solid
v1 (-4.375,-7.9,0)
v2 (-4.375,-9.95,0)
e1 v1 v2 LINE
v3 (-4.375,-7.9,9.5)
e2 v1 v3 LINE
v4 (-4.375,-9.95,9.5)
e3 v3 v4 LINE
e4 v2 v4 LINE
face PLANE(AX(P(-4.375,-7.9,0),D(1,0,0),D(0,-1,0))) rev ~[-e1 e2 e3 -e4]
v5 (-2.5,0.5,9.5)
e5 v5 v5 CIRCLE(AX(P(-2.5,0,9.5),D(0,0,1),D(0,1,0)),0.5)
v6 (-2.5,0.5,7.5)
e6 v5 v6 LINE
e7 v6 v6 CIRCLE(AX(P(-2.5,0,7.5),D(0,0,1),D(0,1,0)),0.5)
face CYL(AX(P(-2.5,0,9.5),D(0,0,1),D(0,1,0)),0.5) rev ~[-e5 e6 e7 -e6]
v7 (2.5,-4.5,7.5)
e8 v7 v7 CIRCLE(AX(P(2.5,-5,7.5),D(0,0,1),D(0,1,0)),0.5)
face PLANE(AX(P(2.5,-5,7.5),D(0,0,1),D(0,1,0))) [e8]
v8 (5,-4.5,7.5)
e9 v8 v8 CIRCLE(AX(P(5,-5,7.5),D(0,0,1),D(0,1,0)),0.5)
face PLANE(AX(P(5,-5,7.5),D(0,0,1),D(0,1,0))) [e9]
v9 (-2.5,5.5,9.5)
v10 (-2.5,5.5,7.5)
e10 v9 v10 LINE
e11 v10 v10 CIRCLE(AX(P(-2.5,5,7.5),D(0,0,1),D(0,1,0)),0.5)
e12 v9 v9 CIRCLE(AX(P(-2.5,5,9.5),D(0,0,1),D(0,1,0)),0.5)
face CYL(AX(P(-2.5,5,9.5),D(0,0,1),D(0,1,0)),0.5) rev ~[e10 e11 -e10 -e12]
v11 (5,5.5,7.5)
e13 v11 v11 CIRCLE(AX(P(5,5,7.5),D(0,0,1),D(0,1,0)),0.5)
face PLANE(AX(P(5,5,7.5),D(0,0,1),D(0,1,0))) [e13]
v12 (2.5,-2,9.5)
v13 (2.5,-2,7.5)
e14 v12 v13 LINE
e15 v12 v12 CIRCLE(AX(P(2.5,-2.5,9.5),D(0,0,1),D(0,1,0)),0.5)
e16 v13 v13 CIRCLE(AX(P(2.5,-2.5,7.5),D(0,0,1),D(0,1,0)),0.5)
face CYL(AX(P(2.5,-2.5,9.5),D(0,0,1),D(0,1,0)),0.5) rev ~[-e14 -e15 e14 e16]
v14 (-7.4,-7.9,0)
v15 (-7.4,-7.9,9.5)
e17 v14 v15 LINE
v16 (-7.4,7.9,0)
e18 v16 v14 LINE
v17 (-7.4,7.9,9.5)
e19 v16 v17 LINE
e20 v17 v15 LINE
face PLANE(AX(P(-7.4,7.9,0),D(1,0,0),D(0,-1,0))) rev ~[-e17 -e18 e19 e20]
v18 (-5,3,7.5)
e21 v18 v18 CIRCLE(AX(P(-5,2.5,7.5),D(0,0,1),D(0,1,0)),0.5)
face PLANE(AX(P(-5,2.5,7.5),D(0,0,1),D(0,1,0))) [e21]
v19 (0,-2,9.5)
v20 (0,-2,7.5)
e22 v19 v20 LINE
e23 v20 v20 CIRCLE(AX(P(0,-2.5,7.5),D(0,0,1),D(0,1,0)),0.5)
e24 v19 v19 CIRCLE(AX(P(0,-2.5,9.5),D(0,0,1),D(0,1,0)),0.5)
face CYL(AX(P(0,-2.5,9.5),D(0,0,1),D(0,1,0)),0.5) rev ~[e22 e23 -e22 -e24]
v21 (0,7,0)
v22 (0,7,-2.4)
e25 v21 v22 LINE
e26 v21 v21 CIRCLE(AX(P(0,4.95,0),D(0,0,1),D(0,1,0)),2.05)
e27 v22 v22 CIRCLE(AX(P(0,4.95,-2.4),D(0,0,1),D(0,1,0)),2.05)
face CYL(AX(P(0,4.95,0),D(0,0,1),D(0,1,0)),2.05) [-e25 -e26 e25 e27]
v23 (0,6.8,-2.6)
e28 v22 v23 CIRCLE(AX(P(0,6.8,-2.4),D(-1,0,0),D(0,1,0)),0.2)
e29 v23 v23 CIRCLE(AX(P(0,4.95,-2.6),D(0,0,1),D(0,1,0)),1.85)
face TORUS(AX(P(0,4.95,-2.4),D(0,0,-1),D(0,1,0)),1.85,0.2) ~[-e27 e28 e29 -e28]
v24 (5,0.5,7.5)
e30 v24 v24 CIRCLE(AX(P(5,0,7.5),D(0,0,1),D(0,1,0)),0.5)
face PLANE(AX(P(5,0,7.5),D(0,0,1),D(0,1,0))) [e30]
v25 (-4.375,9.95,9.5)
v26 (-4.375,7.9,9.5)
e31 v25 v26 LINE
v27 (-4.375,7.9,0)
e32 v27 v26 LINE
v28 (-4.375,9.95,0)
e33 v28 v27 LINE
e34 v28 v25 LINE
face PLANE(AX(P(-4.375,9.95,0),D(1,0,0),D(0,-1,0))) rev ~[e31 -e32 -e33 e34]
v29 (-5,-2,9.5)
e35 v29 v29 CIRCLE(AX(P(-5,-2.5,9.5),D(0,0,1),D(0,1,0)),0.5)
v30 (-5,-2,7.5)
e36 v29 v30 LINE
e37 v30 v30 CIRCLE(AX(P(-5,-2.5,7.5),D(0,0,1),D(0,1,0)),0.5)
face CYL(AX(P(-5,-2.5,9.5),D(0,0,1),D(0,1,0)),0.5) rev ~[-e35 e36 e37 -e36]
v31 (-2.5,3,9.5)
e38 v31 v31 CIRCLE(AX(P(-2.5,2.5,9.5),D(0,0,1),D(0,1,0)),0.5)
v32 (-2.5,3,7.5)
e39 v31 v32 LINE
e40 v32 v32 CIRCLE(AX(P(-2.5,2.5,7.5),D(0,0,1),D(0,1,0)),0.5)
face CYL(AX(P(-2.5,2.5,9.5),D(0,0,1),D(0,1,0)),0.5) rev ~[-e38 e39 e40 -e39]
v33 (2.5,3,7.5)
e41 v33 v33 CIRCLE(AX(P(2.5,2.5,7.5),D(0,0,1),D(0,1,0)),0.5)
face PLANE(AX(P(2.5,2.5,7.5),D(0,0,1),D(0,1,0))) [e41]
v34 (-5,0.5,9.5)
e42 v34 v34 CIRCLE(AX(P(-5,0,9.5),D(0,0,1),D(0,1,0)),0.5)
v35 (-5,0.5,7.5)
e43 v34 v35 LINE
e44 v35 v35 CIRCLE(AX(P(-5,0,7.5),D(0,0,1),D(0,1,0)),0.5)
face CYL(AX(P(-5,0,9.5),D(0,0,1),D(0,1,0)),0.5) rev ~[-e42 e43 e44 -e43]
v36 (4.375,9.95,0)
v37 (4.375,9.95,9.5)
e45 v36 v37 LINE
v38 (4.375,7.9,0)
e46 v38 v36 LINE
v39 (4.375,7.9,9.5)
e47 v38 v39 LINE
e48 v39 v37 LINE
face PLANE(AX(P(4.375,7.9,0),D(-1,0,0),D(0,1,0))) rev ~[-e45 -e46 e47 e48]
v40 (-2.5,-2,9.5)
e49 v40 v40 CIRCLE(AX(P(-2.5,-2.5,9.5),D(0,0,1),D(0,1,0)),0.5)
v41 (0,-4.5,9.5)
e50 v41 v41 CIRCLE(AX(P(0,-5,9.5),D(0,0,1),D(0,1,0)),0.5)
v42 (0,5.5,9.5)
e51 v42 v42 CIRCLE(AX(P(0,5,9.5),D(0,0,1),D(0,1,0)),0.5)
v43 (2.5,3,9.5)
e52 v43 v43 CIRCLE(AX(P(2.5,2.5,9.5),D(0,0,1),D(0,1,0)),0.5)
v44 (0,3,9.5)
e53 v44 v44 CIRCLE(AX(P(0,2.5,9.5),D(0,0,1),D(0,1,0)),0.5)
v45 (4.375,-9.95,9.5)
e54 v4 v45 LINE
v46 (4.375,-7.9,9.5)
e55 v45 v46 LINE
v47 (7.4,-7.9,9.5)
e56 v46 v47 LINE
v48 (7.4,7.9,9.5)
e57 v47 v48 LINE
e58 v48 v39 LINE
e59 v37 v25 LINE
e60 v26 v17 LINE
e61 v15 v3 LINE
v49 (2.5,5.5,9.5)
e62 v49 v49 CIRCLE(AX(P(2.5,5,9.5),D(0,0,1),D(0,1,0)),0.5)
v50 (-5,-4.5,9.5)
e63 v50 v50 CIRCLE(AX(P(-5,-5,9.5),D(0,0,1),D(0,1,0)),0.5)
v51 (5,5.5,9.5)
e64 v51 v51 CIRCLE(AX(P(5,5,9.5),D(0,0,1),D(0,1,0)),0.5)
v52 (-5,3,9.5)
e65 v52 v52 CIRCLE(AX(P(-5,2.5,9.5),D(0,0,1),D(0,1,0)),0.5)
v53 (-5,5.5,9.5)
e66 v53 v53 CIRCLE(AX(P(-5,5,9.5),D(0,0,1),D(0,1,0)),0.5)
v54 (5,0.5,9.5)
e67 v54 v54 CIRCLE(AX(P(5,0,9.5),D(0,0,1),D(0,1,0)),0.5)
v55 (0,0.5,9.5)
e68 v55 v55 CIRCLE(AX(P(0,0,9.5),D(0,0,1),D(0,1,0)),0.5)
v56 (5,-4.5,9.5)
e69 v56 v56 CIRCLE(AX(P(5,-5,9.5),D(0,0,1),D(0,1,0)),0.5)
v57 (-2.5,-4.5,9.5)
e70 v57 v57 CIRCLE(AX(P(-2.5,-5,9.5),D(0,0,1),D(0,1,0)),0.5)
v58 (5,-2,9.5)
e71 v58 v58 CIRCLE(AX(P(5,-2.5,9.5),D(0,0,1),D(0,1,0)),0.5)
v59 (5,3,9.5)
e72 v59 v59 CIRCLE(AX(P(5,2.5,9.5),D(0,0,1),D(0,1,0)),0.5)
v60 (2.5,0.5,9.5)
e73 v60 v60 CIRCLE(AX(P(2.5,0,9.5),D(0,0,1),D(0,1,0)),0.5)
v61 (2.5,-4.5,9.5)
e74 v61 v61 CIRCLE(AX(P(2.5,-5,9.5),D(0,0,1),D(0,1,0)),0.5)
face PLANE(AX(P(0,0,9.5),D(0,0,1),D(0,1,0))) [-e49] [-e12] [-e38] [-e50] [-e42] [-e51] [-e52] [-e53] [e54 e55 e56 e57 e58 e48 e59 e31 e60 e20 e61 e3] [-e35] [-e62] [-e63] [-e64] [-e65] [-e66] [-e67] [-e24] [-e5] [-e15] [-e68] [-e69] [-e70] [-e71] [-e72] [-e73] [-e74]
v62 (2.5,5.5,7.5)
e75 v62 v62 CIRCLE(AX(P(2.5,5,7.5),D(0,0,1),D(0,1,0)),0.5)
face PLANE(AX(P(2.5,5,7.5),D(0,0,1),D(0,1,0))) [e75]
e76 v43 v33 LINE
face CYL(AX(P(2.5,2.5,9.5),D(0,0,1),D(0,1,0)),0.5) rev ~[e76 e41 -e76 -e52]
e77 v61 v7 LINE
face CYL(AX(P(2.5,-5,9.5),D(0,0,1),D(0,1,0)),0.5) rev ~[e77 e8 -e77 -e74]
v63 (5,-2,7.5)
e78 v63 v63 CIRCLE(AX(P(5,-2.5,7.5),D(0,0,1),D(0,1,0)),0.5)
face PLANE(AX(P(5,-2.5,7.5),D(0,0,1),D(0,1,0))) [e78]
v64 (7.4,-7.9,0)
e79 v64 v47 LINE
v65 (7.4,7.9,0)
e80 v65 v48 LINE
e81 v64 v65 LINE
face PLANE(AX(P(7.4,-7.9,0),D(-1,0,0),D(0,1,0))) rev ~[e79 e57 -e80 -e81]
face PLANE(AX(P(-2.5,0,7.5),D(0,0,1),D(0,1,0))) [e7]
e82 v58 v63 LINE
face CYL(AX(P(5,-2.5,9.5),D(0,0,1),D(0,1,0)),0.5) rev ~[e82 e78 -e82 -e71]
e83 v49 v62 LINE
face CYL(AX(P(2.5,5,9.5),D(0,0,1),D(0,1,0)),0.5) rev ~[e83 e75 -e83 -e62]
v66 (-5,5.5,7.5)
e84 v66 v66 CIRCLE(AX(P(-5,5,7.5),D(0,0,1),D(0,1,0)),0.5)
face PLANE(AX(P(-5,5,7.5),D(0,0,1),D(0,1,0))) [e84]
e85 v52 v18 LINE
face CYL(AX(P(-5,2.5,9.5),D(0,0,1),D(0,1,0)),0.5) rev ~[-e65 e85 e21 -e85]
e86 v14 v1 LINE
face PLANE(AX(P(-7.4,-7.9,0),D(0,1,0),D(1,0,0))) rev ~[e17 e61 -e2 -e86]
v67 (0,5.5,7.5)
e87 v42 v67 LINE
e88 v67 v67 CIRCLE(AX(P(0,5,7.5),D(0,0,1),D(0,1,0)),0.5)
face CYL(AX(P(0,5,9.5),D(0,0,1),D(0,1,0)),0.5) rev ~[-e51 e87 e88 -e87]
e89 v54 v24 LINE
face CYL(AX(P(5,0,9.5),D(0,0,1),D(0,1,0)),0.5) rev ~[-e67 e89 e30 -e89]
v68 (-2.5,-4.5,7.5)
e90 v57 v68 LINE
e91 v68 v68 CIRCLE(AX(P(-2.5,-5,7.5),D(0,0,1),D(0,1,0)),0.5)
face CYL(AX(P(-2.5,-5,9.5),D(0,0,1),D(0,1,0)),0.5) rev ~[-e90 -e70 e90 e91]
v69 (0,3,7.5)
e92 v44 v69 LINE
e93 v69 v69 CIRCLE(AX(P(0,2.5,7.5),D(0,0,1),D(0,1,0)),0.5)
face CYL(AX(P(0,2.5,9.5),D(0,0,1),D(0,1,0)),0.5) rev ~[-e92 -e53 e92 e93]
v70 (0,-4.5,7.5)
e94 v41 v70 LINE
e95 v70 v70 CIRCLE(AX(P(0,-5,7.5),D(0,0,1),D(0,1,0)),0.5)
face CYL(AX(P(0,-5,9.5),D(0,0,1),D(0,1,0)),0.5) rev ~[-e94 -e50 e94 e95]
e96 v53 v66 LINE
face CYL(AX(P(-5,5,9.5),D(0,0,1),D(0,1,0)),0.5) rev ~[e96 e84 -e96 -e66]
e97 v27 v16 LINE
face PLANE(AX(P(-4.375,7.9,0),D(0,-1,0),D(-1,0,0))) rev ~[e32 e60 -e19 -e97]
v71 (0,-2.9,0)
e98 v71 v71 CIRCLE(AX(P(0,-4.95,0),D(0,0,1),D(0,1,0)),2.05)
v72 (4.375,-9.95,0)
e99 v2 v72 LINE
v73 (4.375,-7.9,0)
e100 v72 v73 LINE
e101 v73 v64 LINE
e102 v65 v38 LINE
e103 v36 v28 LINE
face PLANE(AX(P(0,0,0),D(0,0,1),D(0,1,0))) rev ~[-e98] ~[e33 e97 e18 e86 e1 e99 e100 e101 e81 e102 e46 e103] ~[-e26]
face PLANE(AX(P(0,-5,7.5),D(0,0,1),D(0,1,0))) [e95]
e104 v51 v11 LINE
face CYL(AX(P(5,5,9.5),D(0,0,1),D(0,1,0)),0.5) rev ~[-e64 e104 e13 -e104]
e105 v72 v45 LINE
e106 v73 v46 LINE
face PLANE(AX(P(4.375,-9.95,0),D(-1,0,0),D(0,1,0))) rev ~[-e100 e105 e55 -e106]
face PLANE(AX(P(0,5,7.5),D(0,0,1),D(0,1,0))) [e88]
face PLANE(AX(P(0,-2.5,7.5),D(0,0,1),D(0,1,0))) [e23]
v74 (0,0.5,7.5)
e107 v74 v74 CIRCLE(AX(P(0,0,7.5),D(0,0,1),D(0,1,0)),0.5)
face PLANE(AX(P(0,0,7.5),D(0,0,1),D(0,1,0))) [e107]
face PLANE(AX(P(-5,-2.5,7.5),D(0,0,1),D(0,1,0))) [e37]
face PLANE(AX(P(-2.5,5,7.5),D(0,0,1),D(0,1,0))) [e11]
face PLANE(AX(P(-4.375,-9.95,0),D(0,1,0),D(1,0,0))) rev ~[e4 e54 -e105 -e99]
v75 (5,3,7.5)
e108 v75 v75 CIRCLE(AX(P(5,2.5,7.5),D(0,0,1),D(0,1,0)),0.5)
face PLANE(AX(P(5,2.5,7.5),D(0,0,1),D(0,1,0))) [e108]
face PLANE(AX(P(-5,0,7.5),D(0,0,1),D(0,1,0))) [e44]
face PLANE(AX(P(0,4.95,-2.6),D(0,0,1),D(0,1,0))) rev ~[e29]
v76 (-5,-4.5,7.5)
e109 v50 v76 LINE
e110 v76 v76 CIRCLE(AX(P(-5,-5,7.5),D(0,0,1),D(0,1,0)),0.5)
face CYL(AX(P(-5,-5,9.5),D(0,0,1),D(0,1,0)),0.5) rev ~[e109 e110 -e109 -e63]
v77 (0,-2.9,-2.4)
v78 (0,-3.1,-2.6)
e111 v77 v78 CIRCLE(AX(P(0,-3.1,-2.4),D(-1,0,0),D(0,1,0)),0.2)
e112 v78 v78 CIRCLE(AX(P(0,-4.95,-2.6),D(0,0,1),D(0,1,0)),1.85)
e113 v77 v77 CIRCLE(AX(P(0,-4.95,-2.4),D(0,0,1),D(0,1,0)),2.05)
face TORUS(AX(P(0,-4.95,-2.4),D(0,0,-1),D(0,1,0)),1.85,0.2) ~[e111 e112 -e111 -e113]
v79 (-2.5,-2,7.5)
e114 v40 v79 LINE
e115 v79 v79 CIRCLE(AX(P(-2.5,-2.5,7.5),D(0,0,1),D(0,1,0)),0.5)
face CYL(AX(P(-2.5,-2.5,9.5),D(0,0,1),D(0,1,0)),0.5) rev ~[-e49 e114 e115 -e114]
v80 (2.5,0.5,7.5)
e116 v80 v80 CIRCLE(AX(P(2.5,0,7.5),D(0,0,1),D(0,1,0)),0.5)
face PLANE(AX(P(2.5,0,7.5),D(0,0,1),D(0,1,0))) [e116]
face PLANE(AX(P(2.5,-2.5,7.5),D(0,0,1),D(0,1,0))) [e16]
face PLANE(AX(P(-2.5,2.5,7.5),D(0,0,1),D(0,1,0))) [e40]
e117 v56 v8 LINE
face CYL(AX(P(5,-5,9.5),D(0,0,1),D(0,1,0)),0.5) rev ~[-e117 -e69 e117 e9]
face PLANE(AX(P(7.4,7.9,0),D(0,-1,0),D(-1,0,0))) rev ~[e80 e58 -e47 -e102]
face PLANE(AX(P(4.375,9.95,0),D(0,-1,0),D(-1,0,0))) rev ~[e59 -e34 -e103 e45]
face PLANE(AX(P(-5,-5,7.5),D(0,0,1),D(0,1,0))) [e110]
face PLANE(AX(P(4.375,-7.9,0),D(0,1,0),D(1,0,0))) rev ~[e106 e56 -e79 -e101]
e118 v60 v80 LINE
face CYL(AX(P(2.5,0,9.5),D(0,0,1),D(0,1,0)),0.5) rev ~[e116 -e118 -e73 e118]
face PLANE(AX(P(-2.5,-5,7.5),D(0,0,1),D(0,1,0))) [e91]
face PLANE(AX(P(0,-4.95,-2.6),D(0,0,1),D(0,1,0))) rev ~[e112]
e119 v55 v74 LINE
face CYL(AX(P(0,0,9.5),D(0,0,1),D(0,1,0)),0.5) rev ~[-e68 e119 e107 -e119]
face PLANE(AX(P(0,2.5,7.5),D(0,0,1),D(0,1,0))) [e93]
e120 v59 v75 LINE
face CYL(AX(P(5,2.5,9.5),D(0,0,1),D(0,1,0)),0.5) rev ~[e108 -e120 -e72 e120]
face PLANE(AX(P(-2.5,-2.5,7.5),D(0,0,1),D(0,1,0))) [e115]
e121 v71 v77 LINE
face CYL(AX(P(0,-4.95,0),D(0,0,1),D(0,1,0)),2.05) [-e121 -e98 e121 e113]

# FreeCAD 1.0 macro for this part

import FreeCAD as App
import Part
import Sketcher
from FreeCAD import Vector


def edges_at(feature, points):
    """Names of the edges that pass closest to the given points."""
    edges = feature.Shape.Edges
    near = lambda p: min(range(len(edges)), key=lambda i: edges[i].distToShape(Part.Vertex(*p))[0])
    return sorted({f"Edge{near(p) + 1}" for p in points})


def add_polygon(sketch, points):
    """Adds a closed chain of lines whose ends are joined by coincident constraints."""
    first, n = sketch.GeometryCount, len(points)
    for a, b in zip(points, points[1:] + points[:1]):
        sketch.addGeometry(Part.LineSegment(App.Vector(*a, 0), App.Vector(*b, 0)), False)
    for i in range(n):
        sketch.addConstraint(Sketcher.Constraint("Coincident", first + i, 2, first + (i + 1) % n, 1))

doc = App.newDocument("Part")
body = doc.addObject("PartDesign::Body", "Body")

# Sketch on XY plane
sketch1 = body.newObject("Sketcher::SketchObject", "Sketch")
sketch1.AttachmentSupport = (doc.getObject("XY_Plane"), [""])
sketch1.MapMode = "FlatFace"
add_polygon(sketch1, [(-9.95, 4.375), (-9.95, -4.375), (-7.9, -4.375), (-7.9, -7.4), (7.9, -7.4), (7.9, -4.375), (9.95, -4.375), (9.95, 4.375), (7.9, 4.375), (7.9, 7.4), (-7.9, 7.4), (-7.9, 4.375)])  # lines 0-11
sketch1.addConstraint(Sketcher.Constraint("Vertical", 0))
sketch1.addConstraint(Sketcher.Constraint("Horizontal", 1))
sketch1.addConstraint(Sketcher.Constraint("Vertical", 2))
sketch1.addConstraint(Sketcher.Constraint("Horizontal", 3))
sketch1.addConstraint(Sketcher.Constraint("Vertical", 4))
sketch1.addConstraint(Sketcher.Constraint("Horizontal", 5))
sketch1.addConstraint(Sketcher.Constraint("Vertical", 6))
sketch1.addConstraint(Sketcher.Constraint("Horizontal", 7))
sketch1.addConstraint(Sketcher.Constraint("Vertical", 8))
sketch1.addConstraint(Sketcher.Constraint("Horizontal", 9))
sketch1.addConstraint(Sketcher.Constraint("Vertical", 10))
sketch1.addConstraint(Sketcher.Constraint("Horizontal", 11))
sketch1.addConstraint(Sketcher.Constraint("Symmetric", 0, 2, 6, 2, -1, 1))
sketch1.addConstraint(Sketcher.Constraint("Symmetric", 2, 2, 8, 2, -1, 1))
sketch1.addConstraint(Sketcher.Constraint("Symmetric", 4, 2, 10, 2, -1, 1))
sketch1.addConstraint(Sketcher.Constraint("Symmetric", 1, 2, 4, 2, -2))
sketch1.addConstraint(Sketcher.Constraint("DistanceX", 3, 1, 3, 2, 15.8))
sketch1.addConstraint(Sketcher.Constraint("DistanceX", 1, 1, 1, 2, 2.05))
sketch1.addConstraint(Sketcher.Constraint("DistanceY", 0, 2, 0, 1, 8.75))
sketch1.addConstraint(Sketcher.Constraint("DistanceY", 2, 2, -1, 1, 7.4))
pad1 = body.newObject("PartDesign::Pad", "Pad")
pad1.Profile = sketch1
pad1.Length = 9.5

# Sketch on XY plane
sketch2 = body.newObject("Sketcher::SketchObject", "Sketch001")
sketch2.AttachmentSupport = (doc.getObject("XY_Plane"), [""])
sketch2.MapMode = "FlatFace"
sketch2.AttachmentOffset = App.Placement(Vector(0, 0, 9.5), App.Rotation())
sketch2.addGeometry(Part.Circle(Vector(0, 0, 0), Vector(0, 0, 1), 0.5), False)
sketch2.addGeometry(Part.Circle(Vector(0, 2.5, 0), Vector(0, 0, 1), 0.5), False)
sketch2.addGeometry(Part.Circle(Vector(0, 5, 0), Vector(0, 0, 1), 0.5), False)
sketch2.addGeometry(Part.Circle(Vector(2.5, 0, 0), Vector(0, 0, 1), 0.5), False)
sketch2.addGeometry(Part.Circle(Vector(2.5, 2.5, 0), Vector(0, 0, 1), 0.5), False)
sketch2.addGeometry(Part.Circle(Vector(2.5, 5, 0), Vector(0, 0, 1), 0.5), False)
sketch2.addGeometry(Part.Circle(Vector(5, 0, 0), Vector(0, 0, 1), 0.5), False)
sketch2.addGeometry(Part.Circle(Vector(5, 2.5, 0), Vector(0, 0, 1), 0.5), False)
sketch2.addGeometry(Part.Circle(Vector(5, 5, 0), Vector(0, 0, 1), 0.5), False)
sketch2.addGeometry(Part.Circle(Vector(-5, 0, 0), Vector(0, 0, 1), 0.5), False)
sketch2.addGeometry(Part.Circle(Vector(-2.5, 5, 0), Vector(0, 0, 1), 0.5), False)
sketch2.addGeometry(Part.Circle(Vector(-2.5, 2.5, 0), Vector(0, 0, 1), 0.5), False)
sketch2.addGeometry(Part.Circle(Vector(-2.5, 0, 0), Vector(0, 0, 1), 0.5), False)
sketch2.addGeometry(Part.Circle(Vector(-5, 2.5, 0), Vector(0, 0, 1), 0.5), False)
sketch2.addGeometry(Part.Circle(Vector(-5, 5, 0), Vector(0, 0, 1), 0.5), False)
sketch2.addGeometry(Part.Circle(Vector(2.5, -5, 0), Vector(0, 0, 1), 0.5), False)
sketch2.addGeometry(Part.Circle(Vector(2.5, -2.5, 0), Vector(0, 0, 1), 0.5), False)
sketch2.addGeometry(Part.Circle(Vector(0, -5, 0), Vector(0, 0, 1), 0.5), False)
sketch2.addGeometry(Part.Circle(Vector(0, -2.5, 0), Vector(0, 0, 1), 0.5), False)
sketch2.addGeometry(Part.Circle(Vector(-5, -2.5, 0), Vector(0, 0, 1), 0.5), False)
sketch2.addGeometry(Part.Circle(Vector(5, -2.5, 0), Vector(0, 0, 1), 0.5), False)
sketch2.addGeometry(Part.Circle(Vector(5, -5, 0), Vector(0, 0, 1), 0.5), False)
sketch2.addGeometry(Part.Circle(Vector(-2.5, -5, 0), Vector(0, 0, 1), 0.5), False)
sketch2.addGeometry(Part.Circle(Vector(-5, -5, 0), Vector(0, 0, 1), 0.5), False)
sketch2.addGeometry(Part.Circle(Vector(-2.5, -2.5, 0), Vector(0, 0, 1), 0.5), False)
sketch2.addConstraint(Sketcher.Constraint("Coincident", 0, 3, -1, 1))
sketch2.addConstraint(Sketcher.Constraint("Equal", 0, 1))
sketch2.addConstraint(Sketcher.Constraint("Equal", 1, 2))
sketch2.addConstraint(Sketcher.Constraint("Equal", 2, 3))
sketch2.addConstraint(Sketcher.Constraint("Equal", 3, 4))
sketch2.addConstraint(Sketcher.Constraint("Equal", 4, 5))
sketch2.addConstraint(Sketcher.Constraint("Equal", 5, 6))
sketch2.addConstraint(Sketcher.Constraint("Equal", 6, 7))
sketch2.addConstraint(Sketcher.Constraint("Equal", 7, 8))
sketch2.addConstraint(Sketcher.Constraint("Equal", 8, 9))
sketch2.addConstraint(Sketcher.Constraint("Equal", 9, 10))
sketch2.addConstraint(Sketcher.Constraint("Equal", 10, 11))
sketch2.addConstraint(Sketcher.Constraint("Equal", 11, 12))
sketch2.addConstraint(Sketcher.Constraint("Equal", 12, 13))
sketch2.addConstraint(Sketcher.Constraint("Equal", 13, 14))
sketch2.addConstraint(Sketcher.Constraint("Equal", 14, 15))
sketch2.addConstraint(Sketcher.Constraint("Equal", 15, 16))
sketch2.addConstraint(Sketcher.Constraint("Equal", 16, 17))
sketch2.addConstraint(Sketcher.Constraint("Equal", 17, 18))
sketch2.addConstraint(Sketcher.Constraint("Equal", 18, 19))
sketch2.addConstraint(Sketcher.Constraint("Equal", 19, 20))
sketch2.addConstraint(Sketcher.Constraint("Equal", 20, 21))
sketch2.addConstraint(Sketcher.Constraint("Equal", 21, 22))
sketch2.addConstraint(Sketcher.Constraint("Equal", 22, 23))
sketch2.addConstraint(Sketcher.Constraint("Equal", 23, 24))
sketch2.addConstraint(Sketcher.Constraint("Symmetric", 6, 3, 9, 3, -1, 1))
sketch2.addConstraint(Sketcher.Constraint("Symmetric", 3, 3, 12, 3, -1, 1))
sketch2.addConstraint(Sketcher.Constraint("Symmetric", 10, 3, 15, 3, -1, 1))
sketch2.addConstraint(Sketcher.Constraint("Symmetric", 11, 3, 16, 3, -1, 1))
sketch2.addConstraint(Sketcher.Constraint("Symmetric", 2, 3, 17, 3, -1, 1))
sketch2.addConstraint(Sketcher.Constraint("Symmetric", 1, 3, 18, 3, -1, 1))
sketch2.addConstraint(Sketcher.Constraint("Symmetric", 7, 3, 19, 3, -1, 1))
sketch2.addConstraint(Sketcher.Constraint("Symmetric", 13, 3, 20, 3, -1, 1))
sketch2.addConstraint(Sketcher.Constraint("Symmetric", 14, 3, 21, 3, -1, 1))
sketch2.addConstraint(Sketcher.Constraint("Symmetric", 5, 3, 22, 3, -1, 1))
sketch2.addConstraint(Sketcher.Constraint("Symmetric", 8, 3, 23, 3, -1, 1))
sketch2.addConstraint(Sketcher.Constraint("Symmetric", 4, 3, 24, 3, -1, 1))
sketch2.addConstraint(Sketcher.Constraint("Symmetric", 5, 3, 10, 3, -2))
sketch2.addConstraint(Sketcher.Constraint("Symmetric", 4, 3, 11, 3, -2))
sketch2.addConstraint(Sketcher.Constraint("Symmetric", 7, 3, 13, 3, -2))
sketch2.addConstraint(Sketcher.Constraint("Symmetric", 8, 3, 14, 3, -2))
sketch2.addConstraint(Sketcher.Constraint("PointOnObject", 1, 3, -2))
sketch2.addConstraint(Sketcher.Constraint("PointOnObject", 2, 3, -2))
sketch2.addConstraint(Sketcher.Constraint("PointOnObject", 3, 3, -1))
sketch2.addConstraint(Sketcher.Constraint("PointOnObject", 6, 3, -1))
sketch2.addConstraint(Sketcher.Constraint("Horizontal", 1, 3, 4, 3))
sketch2.addConstraint(Sketcher.Constraint("Horizontal", 2, 3, 5, 3))
sketch2.addConstraint(Sketcher.Constraint("Horizontal", 4, 3, 7, 3))
sketch2.addConstraint(Sketcher.Constraint("Horizontal", 5, 3, 8, 3))
sketch2.addConstraint(Sketcher.Constraint("Vertical", 3, 3, 4, 3))
sketch2.addConstraint(Sketcher.Constraint("Vertical", 4, 3, 5, 3))
sketch2.addConstraint(Sketcher.Constraint("Vertical", 6, 3, 7, 3))
sketch2.addConstraint(Sketcher.Constraint("Vertical", 7, 3, 8, 3))
sketch2.addConstraint(Sketcher.Constraint("Diameter", 0, 1.0))
sketch2.addConstraint(Sketcher.Constraint("DistanceY", -1, 1, 2, 3, 5.0))
sketch2.addConstraint(Sketcher.Constraint("DistanceX", -1, 1, 6, 3, 5.0))
sketch2.addConstraint(Sketcher.Constraint("DistanceX", 10, 3, 5, 3, 5.0))
sketch2.addConstraint(Sketcher.Constraint("DistanceY", 16, 3, 4, 3, 5.0))
pocket1 = body.newObject("PartDesign::Pocket", "Pocket")
pocket1.Profile = sketch2
pocket1.Length = 2

# Sketch on XY plane
sketch3 = body.newObject("Sketcher::SketchObject", "Sketch002")
sketch3.AttachmentSupport = (doc.getObject("XY_Plane"), [""])
sketch3.MapMode = "FlatFace"
sketch3.addGeometry(Part.Circle(Vector(-4.95, 0, 0), Vector(0, 0, 1), 2.05), False)
sketch3.addGeometry(Part.Circle(Vector(4.95, 0, 0), Vector(0, 0, 1), 2.05), False)
sketch3.addConstraint(Sketcher.Constraint("Equal", 0, 1))
sketch3.addConstraint(Sketcher.Constraint("Symmetric", 0, 3, 1, 3, -1, 1))
sketch3.addConstraint(Sketcher.Constraint("PointOnObject", 0, 3, -1))
sketch3.addConstraint(Sketcher.Constraint("Diameter", 0, 4.1))
sketch3.addConstraint(Sketcher.Constraint("DistanceX", 0, 3, 1, 3, 9.9))
pad2 = body.newObject("PartDesign::Pad", "Pad001")
pad2.Profile = sketch3
pad2.Length = 2.6
pad2.Reversed = True
doc.recompute()

fillet = body.newObject("PartDesign::Fillet", "Fillet")
fillet.Base = (pad2, edges_at(pad2, [(-7, 0, -2.6), (2.9, 0, -2.6)]))
fillet.Radius = 0.2
body2 = doc.addObject("PartDesign::Body", "Body001")
doc.recompute()

body.Placement = App.Placement(Vector(0, 0, 0), App.Rotation(Vector(0, 0, 1), 90))
boolean = body2.newObject("PartDesign::Boolean", "Boolean")
boolean.Type = "Fuse"
boolean.addObjects([body])

doc.recompute()
